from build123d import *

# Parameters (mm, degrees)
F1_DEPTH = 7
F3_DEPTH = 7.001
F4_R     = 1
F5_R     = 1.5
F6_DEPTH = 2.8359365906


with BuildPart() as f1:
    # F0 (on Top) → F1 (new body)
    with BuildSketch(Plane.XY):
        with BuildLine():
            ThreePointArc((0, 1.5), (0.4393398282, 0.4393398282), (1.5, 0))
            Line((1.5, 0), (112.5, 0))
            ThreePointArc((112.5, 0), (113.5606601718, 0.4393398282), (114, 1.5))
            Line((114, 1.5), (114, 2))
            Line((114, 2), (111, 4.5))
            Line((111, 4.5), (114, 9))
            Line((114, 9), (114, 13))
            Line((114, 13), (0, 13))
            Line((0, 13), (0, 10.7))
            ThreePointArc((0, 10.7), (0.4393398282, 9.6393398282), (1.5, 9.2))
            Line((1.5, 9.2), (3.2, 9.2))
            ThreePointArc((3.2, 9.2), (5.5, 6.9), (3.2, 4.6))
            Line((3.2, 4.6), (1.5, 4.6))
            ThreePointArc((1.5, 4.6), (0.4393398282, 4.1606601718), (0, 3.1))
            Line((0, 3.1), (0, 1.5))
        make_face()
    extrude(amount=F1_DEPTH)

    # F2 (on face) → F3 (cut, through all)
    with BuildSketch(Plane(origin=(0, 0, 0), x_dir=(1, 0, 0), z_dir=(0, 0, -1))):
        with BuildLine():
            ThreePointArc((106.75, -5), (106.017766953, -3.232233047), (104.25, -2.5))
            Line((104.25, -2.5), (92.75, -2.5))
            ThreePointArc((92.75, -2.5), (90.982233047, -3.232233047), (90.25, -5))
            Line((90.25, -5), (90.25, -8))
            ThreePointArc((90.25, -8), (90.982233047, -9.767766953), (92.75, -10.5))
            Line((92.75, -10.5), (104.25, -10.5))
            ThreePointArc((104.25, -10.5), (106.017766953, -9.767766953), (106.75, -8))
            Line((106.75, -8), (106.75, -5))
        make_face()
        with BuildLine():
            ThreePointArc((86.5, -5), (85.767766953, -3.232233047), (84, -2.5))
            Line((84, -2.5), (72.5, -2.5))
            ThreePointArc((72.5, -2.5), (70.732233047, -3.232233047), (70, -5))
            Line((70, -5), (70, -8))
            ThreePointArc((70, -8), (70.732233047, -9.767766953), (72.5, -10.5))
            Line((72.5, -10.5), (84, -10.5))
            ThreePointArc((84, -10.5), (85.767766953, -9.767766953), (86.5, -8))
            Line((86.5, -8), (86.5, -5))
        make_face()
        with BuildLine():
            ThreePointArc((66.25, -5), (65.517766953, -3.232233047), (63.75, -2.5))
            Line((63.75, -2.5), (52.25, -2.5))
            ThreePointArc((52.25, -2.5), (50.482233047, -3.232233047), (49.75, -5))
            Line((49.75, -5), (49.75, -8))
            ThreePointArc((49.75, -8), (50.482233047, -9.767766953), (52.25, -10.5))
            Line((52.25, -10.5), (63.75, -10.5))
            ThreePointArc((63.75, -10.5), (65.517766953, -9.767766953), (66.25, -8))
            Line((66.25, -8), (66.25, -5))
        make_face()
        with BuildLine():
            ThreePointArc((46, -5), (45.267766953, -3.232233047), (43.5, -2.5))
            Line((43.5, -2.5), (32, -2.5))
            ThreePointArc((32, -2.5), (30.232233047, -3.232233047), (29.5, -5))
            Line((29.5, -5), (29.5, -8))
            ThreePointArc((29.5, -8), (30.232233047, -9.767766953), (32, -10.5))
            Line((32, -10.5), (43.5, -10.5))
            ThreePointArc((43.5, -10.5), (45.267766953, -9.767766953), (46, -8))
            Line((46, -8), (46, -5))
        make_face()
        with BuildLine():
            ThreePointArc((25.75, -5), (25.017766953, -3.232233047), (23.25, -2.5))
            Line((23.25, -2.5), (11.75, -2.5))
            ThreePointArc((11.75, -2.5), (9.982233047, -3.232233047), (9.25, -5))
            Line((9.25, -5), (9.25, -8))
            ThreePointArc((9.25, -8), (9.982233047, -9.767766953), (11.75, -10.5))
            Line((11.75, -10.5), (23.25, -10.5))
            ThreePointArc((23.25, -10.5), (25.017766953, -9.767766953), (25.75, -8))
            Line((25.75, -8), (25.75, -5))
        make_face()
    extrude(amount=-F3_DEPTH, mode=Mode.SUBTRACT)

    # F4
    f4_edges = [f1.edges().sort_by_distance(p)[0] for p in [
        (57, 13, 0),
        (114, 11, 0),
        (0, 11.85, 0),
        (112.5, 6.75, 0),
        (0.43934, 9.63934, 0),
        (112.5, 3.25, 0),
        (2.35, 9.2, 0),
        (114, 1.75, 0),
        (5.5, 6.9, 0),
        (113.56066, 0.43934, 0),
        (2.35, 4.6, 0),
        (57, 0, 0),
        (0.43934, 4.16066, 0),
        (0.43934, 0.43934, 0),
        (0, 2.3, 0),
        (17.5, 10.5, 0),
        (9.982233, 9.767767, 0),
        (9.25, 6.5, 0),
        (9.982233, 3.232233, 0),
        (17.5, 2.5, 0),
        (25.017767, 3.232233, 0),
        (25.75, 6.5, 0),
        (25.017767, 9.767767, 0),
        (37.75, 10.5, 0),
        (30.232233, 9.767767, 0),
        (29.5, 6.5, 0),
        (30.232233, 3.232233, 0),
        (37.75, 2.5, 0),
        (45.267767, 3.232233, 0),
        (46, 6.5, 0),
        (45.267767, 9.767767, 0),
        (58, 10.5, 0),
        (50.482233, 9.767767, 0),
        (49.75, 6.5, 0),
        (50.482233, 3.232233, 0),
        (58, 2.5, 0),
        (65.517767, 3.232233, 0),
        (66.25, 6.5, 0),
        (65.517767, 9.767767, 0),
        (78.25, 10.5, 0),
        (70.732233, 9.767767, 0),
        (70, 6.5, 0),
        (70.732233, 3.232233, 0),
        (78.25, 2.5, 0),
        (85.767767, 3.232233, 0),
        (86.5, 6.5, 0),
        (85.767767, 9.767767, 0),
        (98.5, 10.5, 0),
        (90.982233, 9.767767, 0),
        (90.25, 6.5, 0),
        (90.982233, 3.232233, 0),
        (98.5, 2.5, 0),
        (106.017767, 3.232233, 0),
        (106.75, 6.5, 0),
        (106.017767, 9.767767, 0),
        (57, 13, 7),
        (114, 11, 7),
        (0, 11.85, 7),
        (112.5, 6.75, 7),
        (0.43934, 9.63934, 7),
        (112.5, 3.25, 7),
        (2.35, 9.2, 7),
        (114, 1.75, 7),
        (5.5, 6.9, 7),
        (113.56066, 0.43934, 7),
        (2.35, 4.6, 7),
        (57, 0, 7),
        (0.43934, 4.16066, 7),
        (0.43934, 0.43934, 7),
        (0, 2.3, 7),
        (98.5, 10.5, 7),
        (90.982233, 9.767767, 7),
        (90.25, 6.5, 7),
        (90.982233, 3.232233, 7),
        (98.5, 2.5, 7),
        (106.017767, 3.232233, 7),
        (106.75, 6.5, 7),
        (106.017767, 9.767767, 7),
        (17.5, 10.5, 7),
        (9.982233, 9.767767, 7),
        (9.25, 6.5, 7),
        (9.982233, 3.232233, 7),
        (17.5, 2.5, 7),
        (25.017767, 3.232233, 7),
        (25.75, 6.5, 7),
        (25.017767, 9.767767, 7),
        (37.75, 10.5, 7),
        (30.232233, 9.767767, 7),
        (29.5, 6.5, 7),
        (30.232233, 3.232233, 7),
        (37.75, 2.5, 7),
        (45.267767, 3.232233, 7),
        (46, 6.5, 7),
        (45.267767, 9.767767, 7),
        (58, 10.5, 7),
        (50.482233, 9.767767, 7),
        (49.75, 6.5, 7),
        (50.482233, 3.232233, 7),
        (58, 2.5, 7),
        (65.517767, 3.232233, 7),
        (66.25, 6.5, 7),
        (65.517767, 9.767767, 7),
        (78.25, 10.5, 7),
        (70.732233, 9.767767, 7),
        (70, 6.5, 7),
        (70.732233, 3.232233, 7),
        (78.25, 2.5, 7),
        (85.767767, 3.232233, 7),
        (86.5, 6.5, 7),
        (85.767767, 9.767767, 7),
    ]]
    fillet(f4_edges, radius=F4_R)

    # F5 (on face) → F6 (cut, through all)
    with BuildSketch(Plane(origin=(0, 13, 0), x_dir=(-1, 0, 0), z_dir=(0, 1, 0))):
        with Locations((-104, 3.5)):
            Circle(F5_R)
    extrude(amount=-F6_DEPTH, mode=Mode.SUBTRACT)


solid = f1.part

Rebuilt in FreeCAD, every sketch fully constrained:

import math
import FreeCAD as App
import Part
import Sketcher


def edges_at(feature, points):
    """Names of the edges that pass closest to the given points."""
    edges = feature.Shape.Edges
    near = lambda p: min(range(len(edges)), key=lambda i: edges[i].distToShape(Part.Vertex(*p))[0])
    return sorted({f"Edge{near(p) + 1}" for p in points})

doc = App.newDocument("Part")
params = doc.addObject("Spreadsheet::Sheet", "Params")
for row, (alias, value) in enumerate([
    ("sketch1_radius", "1.5 mm"),
    ("sketch1_radius2", "2.3 mm"),
    ("sketch1_width", "111 mm"),
    ("sketch1_height", "4 mm"),
    ("sketch1_width2", "1.7 mm"),
    ("pad1_length", "7 mm"),
    ("sketch2_radius", "2.5 mm"),
    ("sketch2_height", "3 mm"),
    ("sketch2_width", "11.5 mm"),
    ("fillet_radius", "1 mm"),
    ("sketch3_diameter", "3 mm"),
    ("pocket2_length", "2.835937 mm"),
], start=1):
    params.set(f"A{row}", alias)
    params.set(f"B{row}", "=" + value)
    params.setAlias(f"B{row}", alias)

body = doc.addObject("PartDesign::Body", "Body")

sketch1 = body.newObject("Sketcher::SketchObject", "Sketch")
sketch1.AttachmentSupport = (doc.getObject("XY_Plane"), [""])
sketch1.MapMode = "FlatFace"
sketch1.addGeometry([
    Part.ArcOfCircle(Part.Circle(App.Vector(1.5, 1.5, 0), App.Vector(0, 0, 1), 1.5), math.radians(180), math.radians(270)),
    Part.LineSegment(App.Vector(1.5, 0, 0), App.Vector(112.5, 0, 0)),
    Part.ArcOfCircle(Part.Circle(App.Vector(112.5, 1.5, 0), App.Vector(0, 0, 1), 1.5), math.radians(-90), math.radians(0)),
    Part.LineSegment(App.Vector(114, 1.5, 0), App.Vector(114, 2, 0)),
    Part.LineSegment(App.Vector(114, 2, 0), App.Vector(111, 4.5, 0)),
    Part.LineSegment(App.Vector(111, 4.5, 0), App.Vector(114, 9, 0)),
    Part.LineSegment(App.Vector(114, 9, 0), App.Vector(114, 13, 0)),
    Part.LineSegment(App.Vector(114, 13, 0), App.Vector(0, 13, 0)),
    Part.LineSegment(App.Vector(0, 13, 0), App.Vector(0, 10.7, 0)),
    Part.ArcOfCircle(Part.Circle(App.Vector(1.5, 10.7, 0), App.Vector(0, 0, 1), 1.5), math.radians(180), math.radians(270)),
    Part.LineSegment(App.Vector(1.5, 9.2, 0), App.Vector(3.2, 9.2, 0)),
    Part.ArcOfCircle(Part.Circle(App.Vector(3.2, 6.9, 0), App.Vector(0, 0, 1), 2.3), math.radians(-90), math.radians(90)),
    Part.LineSegment(App.Vector(3.2, 4.6, 0), App.Vector(1.5, 4.6, 0)),
    Part.ArcOfCircle(Part.Circle(App.Vector(1.5, 3.1, 0), App.Vector(0, 0, 1), 1.5), math.radians(90), math.radians(180)),
    Part.LineSegment(App.Vector(0, 3.1, 0), App.Vector(0, 1.5, 0)),
], False)
sketch1.addConstraint([
    Sketcher.Constraint("Tangent", 0, 2, 1, 1),
    Sketcher.Constraint("Tangent", 1, 2, 2, 1),
    Sketcher.Constraint("Tangent", 2, 2, 3, 1),
    Sketcher.Constraint("Coincident", 3, 2, 4, 1),
    Sketcher.Constraint("Coincident", 4, 2, 5, 1),
    Sketcher.Constraint("Coincident", 5, 2, 6, 1),
    Sketcher.Constraint("Coincident", 6, 2, 7, 1),
    Sketcher.Constraint("Coincident", 7, 2, 8, 1),
    Sketcher.Constraint("Tangent", 8, 2, 9, 1),
    Sketcher.Constraint("Tangent", 9, 2, 10, 1),
    Sketcher.Constraint("Tangent", 10, 2, 11, 2),
    Sketcher.Constraint("Tangent", 11, 1, 12, 1),
    Sketcher.Constraint("Tangent", 12, 2, 13, 1),
    Sketcher.Constraint("Tangent", 13, 2, 14, 1),
    Sketcher.Constraint("Tangent", 14, 2, 0, 1),
    Sketcher.Constraint("Horizontal", 1),
    Sketcher.Constraint("Vertical", 3),
    Sketcher.Constraint("Vertical", 6),
    Sketcher.Constraint("Horizontal", 7),
    Sketcher.Constraint("Vertical", 8),
    Sketcher.Constraint("Horizontal", 10),
    Sketcher.Constraint("Horizontal", 12),
    Sketcher.Constraint("Vertical", 14),
    Sketcher.Constraint("Equal", 0, 2),
    Sketcher.Constraint("Equal", 2, 9),
    Sketcher.Constraint("Equal", 9, 13),
    Sketcher.Constraint("PointOnObject", 0, 2, -1),
    Sketcher.Constraint("PointOnObject", 7, 2, -2),
    Sketcher.Constraint("PointOnObject", 13, 2, -2),
    Sketcher.Constraint("Vertical", 3, 2, 5, 2),
    Sketcher.Constraint("Radius", 0, 1.5),
    Sketcher.Constraint("Radius", 11, 2.3),
    Sketcher.Constraint("DistanceX", 1, 1, 1, 2, 111.0),
    Sketcher.Constraint("DistanceY", 6, 1, 6, 2, 4.0),
    Sketcher.Constraint("DistanceX", 10, 1, 10, 2, 1.7),
    Sketcher.Constraint("DistanceY", 3, 1, 3, 2, 0.5),
    Sketcher.Constraint("DistanceY", 8, 2, 8, 1, 2.3),
    Sketcher.Constraint("DistanceY", 14, 2, 14, 1, 1.6),
    Sketcher.Constraint("DistanceX", -1, 1, 4, 2, 111.0),
    Sketcher.Constraint("DistanceY", 2, 3, 4, 2, 3.0),
])
sketch1.setExpression("Constraints[30]", "Params.sketch1_radius")
sketch1.setExpression("Constraints[31]", "Params.sketch1_radius2")
sketch1.setExpression("Constraints[32]", "Params.sketch1_width")
sketch1.setExpression("Constraints[33]", "Params.sketch1_height")
sketch1.setExpression("Constraints[34]", "Params.sketch1_width2")
pad1 = body.newObject("PartDesign::Pad", "Pad")
pad1.Profile = sketch1
pad1.setExpression("Length", "Params.pad1_length")

sketch2 = body.newObject("Sketcher::SketchObject", "Sketch001")
sketch2.AttachmentSupport = (doc.getObject("XY_Plane"), [""])
sketch2.MapMode = "FlatFace"
sketch2.addGeometry([
    Part.ArcOfCircle(Part.Circle(App.Vector(104.2, 5, 0), App.Vector(0, 0, 1), 2.5), math.radians(-90), math.radians(0)),
    Part.LineSegment(App.Vector(104.2, 2.5, 0), App.Vector(92.8, 2.5, 0)),
    Part.ArcOfCircle(Part.Circle(App.Vector(92.8, 5, 0), App.Vector(0, 0, 1), 2.5), math.radians(180), math.radians(270)),
    Part.LineSegment(App.Vector(90.2, 5, 0), App.Vector(90.2, 8, 0)),
    Part.ArcOfCircle(Part.Circle(App.Vector(92.8, 8, 0), App.Vector(0, 0, 1), 2.5), math.radians(90), math.radians(180)),
    Part.LineSegment(App.Vector(92.8, 10.5, 0), App.Vector(104.2, 10.5, 0)),
    Part.ArcOfCircle(Part.Circle(App.Vector(104.2, 8, 0), App.Vector(0, 0, 1), 2.5), math.radians(0), math.radians(90)),
    Part.LineSegment(App.Vector(106.8, 8, 0), App.Vector(106.8, 5, 0)),
    Part.ArcOfCircle(Part.Circle(App.Vector(84, 5, 0), App.Vector(0, 0, 1), 2.5), math.radians(-90), math.radians(0)),
    Part.LineSegment(App.Vector(84, 2.5, 0), App.Vector(72.5, 2.5, 0)),
    Part.ArcOfCircle(Part.Circle(App.Vector(72.5, 5, 0), App.Vector(0, 0, 1), 2.5), math.radians(180), math.radians(270)),
    Part.LineSegment(App.Vector(70, 5, 0), App.Vector(70, 8, 0)),
    Part.ArcOfCircle(Part.Circle(App.Vector(72.5, 8, 0), App.Vector(0, 0, 1), 2.5), math.radians(90), math.radians(180)),
    Part.LineSegment(App.Vector(72.5, 10.5, 0), App.Vector(84, 10.5, 0)),
    Part.ArcOfCircle(Part.Circle(App.Vector(84, 8, 0), App.Vector(0, 0, 1), 2.5), math.radians(0), math.radians(90)),
    Part.LineSegment(App.Vector(86.5, 8, 0), App.Vector(86.5, 5, 0)),
    Part.ArcOfCircle(Part.Circle(App.Vector(63.8, 5, 0), App.Vector(0, 0, 1), 2.5), math.radians(-90), math.radians(0)),
    Part.LineSegment(App.Vector(63.8, 2.5, 0), App.Vector(52.2, 2.5, 0)),
    Part.ArcOfCircle(Part.Circle(App.Vector(52.2, 5, 0), App.Vector(0, 0, 1), 2.5), math.radians(180), math.radians(270)),
    Part.LineSegment(App.Vector(49.8, 5, 0), App.Vector(49.8, 8, 0)),
    Part.ArcOfCircle(Part.Circle(App.Vector(52.2, 8, 0), App.Vector(0, 0, 1), 2.5), math.radians(90), math.radians(180)),
    Part.LineSegment(App.Vector(52.2, 10.5, 0), App.Vector(63.8, 10.5, 0)),
    Part.ArcOfCircle(Part.Circle(App.Vector(63.8, 8, 0), App.Vector(0, 0, 1), 2.5), math.radians(0), math.radians(90)),
    Part.LineSegment(App.Vector(66.2, 8, 0), App.Vector(66.2, 5, 0)),
    Part.ArcOfCircle(Part.Circle(App.Vector(43.5, 5, 0), App.Vector(0, 0, 1), 2.5), math.radians(-90), math.radians(0)),
    Part.LineSegment(App.Vector(43.5, 2.5, 0), App.Vector(32, 2.5, 0)),
    Part.ArcOfCircle(Part.Circle(App.Vector(32, 5, 0), App.Vector(0, 0, 1), 2.5), math.radians(180), math.radians(270)),
    Part.LineSegment(App.Vector(29.5, 5, 0), App.Vector(29.5, 8, 0)),
    Part.ArcOfCircle(Part.Circle(App.Vector(32, 8, 0), App.Vector(0, 0, 1), 2.5), math.radians(90), math.radians(180)),
    Part.LineSegment(App.Vector(32, 10.5, 0), App.Vector(43.5, 10.5, 0)),
    Part.ArcOfCircle(Part.Circle(App.Vector(43.5, 8, 0), App.Vector(0, 0, 1), 2.5), math.radians(0), math.radians(90)),
    Part.LineSegment(App.Vector(46, 8, 0), App.Vector(46, 5, 0)),
    Part.ArcOfCircle(Part.Circle(App.Vector(23.2, 5, 0), App.Vector(0, 0, 1), 2.5), math.radians(-90), math.radians(0)),
    Part.LineSegment(App.Vector(23.2, 2.5, 0), App.Vector(11.8, 2.5, 0)),
    Part.ArcOfCircle(Part.Circle(App.Vector(11.8, 5, 0), App.Vector(0, 0, 1), 2.5), math.radians(180), math.radians(270)),
    Part.LineSegment(App.Vector(9.2, 5, 0), App.Vector(9.2, 8, 0)),
    Part.ArcOfCircle(Part.Circle(App.Vector(11.8, 8, 0), App.Vector(0, 0, 1), 2.5), math.radians(90), math.radians(180)),
    Part.LineSegment(App.Vector(11.8, 10.5, 0), App.Vector(23.2, 10.5, 0)),
    Part.ArcOfCircle(Part.Circle(App.Vector(23.2, 8, 0), App.Vector(0, 0, 1), 2.5), math.radians(0), math.radians(90)),
    Part.LineSegment(App.Vector(25.8, 8, 0), App.Vector(25.8, 5, 0)),
], False)
sketch2.addConstraint([
    Sketcher.Constraint("Tangent", 0, 1, 1, 1),
    Sketcher.Constraint("Tangent", 1, 2, 2, 2),
    Sketcher.Constraint("Tangent", 2, 1, 3, 1),
    Sketcher.Constraint("Tangent", 3, 2, 4, 2),
    Sketcher.Constraint("Tangent", 4, 1, 5, 1),
    Sketcher.Constraint("Tangent", 5, 2, 6, 2),
    Sketcher.Constraint("Tangent", 6, 1, 7, 1),
    Sketcher.Constraint("Tangent", 7, 2, 0, 2),
    Sketcher.Constraint("Tangent", 8, 1, 9, 1),
    Sketcher.Constraint("Tangent", 9, 2, 10, 2),
    Sketcher.Constraint("Tangent", 10, 1, 11, 1),
    Sketcher.Constraint("Tangent", 11, 2, 12, 2),
    Sketcher.Constraint("Tangent", 12, 1, 13, 1),
    Sketcher.Constraint("Tangent", 13, 2, 14, 2),
    Sketcher.Constraint("Tangent", 14, 1, 15, 1),
    Sketcher.Constraint("Tangent", 15, 2, 8, 2),
    Sketcher.Constraint("Tangent", 16, 1, 17, 1),
    Sketcher.Constraint("Tangent", 17, 2, 18, 2),
    Sketcher.Constraint("Tangent", 18, 1, 19, 1),
    Sketcher.Constraint("Tangent", 19, 2, 20, 2),
    Sketcher.Constraint("Tangent", 20, 1, 21, 1),
    Sketcher.Constraint("Tangent", 21, 2, 22, 2),
    Sketcher.Constraint("Tangent", 22, 1, 23, 1),
    Sketcher.Constraint("Tangent", 23, 2, 16, 2),
    Sketcher.Constraint("Tangent", 24, 1, 25, 1),
    Sketcher.Constraint("Tangent", 25, 2, 26, 2),
    Sketcher.Constraint("Tangent", 26, 1, 27, 1),
    Sketcher.Constraint("Tangent", 27, 2, 28, 2),
    Sketcher.Constraint("Tangent", 28, 1, 29, 1),
    Sketcher.Constraint("Tangent", 29, 2, 30, 2),
    Sketcher.Constraint("Tangent", 30, 1, 31, 1),
    Sketcher.Constraint("Tangent", 31, 2, 24, 2),
    Sketcher.Constraint("Tangent", 32, 1, 33, 1),
    Sketcher.Constraint("Tangent", 33, 2, 34, 2),
    Sketcher.Constraint("Tangent", 34, 1, 35, 1),
    Sketcher.Constraint("Tangent", 35, 2, 36, 2),
    Sketcher.Constraint("Tangent", 36, 1, 37, 1),
    Sketcher.Constraint("Tangent", 37, 2, 38, 2),
    Sketcher.Constraint("Tangent", 38, 1, 39, 1),
    Sketcher.Constraint("Tangent", 39, 2, 32, 2),
    Sketcher.Constraint("Horizontal", 1),
    Sketcher.Constraint("Vertical", 3),
    Sketcher.Constraint("Horizontal", 5),
    Sketcher.Constraint("Vertical", 7),
    Sketcher.Constraint("Horizontal", 9),
    Sketcher.Constraint("Vertical", 11),
    Sketcher.Constraint("Horizontal", 13),
    Sketcher.Constraint("Vertical", 15),
    Sketcher.Constraint("Horizontal", 17),
    Sketcher.Constraint("Vertical", 19),
    Sketcher.Constraint("Horizontal", 21),
    Sketcher.Constraint("Vertical", 23),
    Sketcher.Constraint("Horizontal", 25),
    Sketcher.Constraint("Vertical", 27),
    Sketcher.Constraint("Horizontal", 29),
    Sketcher.Constraint("Vertical", 31),
    Sketcher.Constraint("Horizontal", 33),
    Sketcher.Constraint("Vertical", 35),
    Sketcher.Constraint("Horizontal", 37),
    Sketcher.Constraint("Vertical", 39),
    Sketcher.Constraint("Equal", 0, 2),
    Sketcher.Constraint("Equal", 2, 4),
    Sketcher.Constraint("Equal", 4, 6),
    Sketcher.Constraint("Equal", 6, 8),
    Sketcher.Constraint("Equal", 8, 10),
    Sketcher.Constraint("Equal", 10, 12),
    Sketcher.Constraint("Equal", 12, 14),
    Sketcher.Constraint("Equal", 14, 16),
    Sketcher.Constraint("Equal", 16, 18),
    Sketcher.Constraint("Equal", 18, 20),
    Sketcher.Constraint("Equal", 20, 22),
    Sketcher.Constraint("Equal", 22, 24),
    Sketcher.Constraint("Equal", 24, 26),
    Sketcher.Constraint("Equal", 26, 28),
    Sketcher.Constraint("Equal", 28, 30),
    Sketcher.Constraint("Equal", 30, 32),
    Sketcher.Constraint("Equal", 32, 34),
    Sketcher.Constraint("Equal", 34, 36),
    Sketcher.Constraint("Equal", 36, 38),
    Sketcher.Constraint("Horizontal", 2, 3, 8, 3),
    Sketcher.Constraint("Horizontal", 6, 3, 12, 3),
    Sketcher.Constraint("Horizontal", 10, 3, 16, 3),
    Sketcher.Constraint("Horizontal", 14, 3, 20, 3),
    Sketcher.Constraint("Horizontal", 18, 3, 24, 3),
    Sketcher.Constraint("Horizontal", 22, 3, 28, 3),
    Sketcher.Constraint("Horizontal", 26, 3, 32, 3),
    Sketcher.Constraint("Horizontal", 30, 3, 36, 3),
    Sketcher.Constraint("Equal", 5, 9),
    Sketcher.Constraint("Equal", 13, 17),
    Sketcher.Constraint("Equal", 21, 25),
    Sketcher.Constraint("Equal", 29, 33),
    Sketcher.Constraint("Radius", 0, 2.5),
    Sketcher.Constraint("DistanceY", 3, 1, 3, 2, 3.0),
    Sketcher.Constraint("DistanceX", 1, 2, 1, 1, 11.5),
    Sketcher.Constraint("DistanceY", -1, 1, 0, 3, 5.0),
    Sketcher.Constraint("DistanceX", -1, 1, 8, 3, 84.0),
    Sketcher.Constraint("DistanceX", -1, 1, 26, 3, 32.0),
    Sketcher.Constraint("DistanceX", 16, 3, 2, 3, 29.0),
    Sketcher.Constraint("DistanceX", 32, 3, 18, 3, 29.0),
    Sketcher.Constraint("DistanceX", -1, 1, 0, 3, 104.25),
])
sketch2.setExpression("Constraints[91]", "Params.sketch2_radius")
sketch2.setExpression("Constraints[92]", "Params.sketch2_height")
sketch2.setExpression("Constraints[93]", "Params.sketch2_width")
pocket1 = body.newObject("PartDesign::Pocket", "Pocket")
pocket1.Profile = sketch2
pocket1.Type = "ThroughAll"
pocket1.Reversed = True
doc.recompute()

fillet = body.newObject("PartDesign::Fillet", "Fillet")
fillet.Base = (pocket1, edges_at(pocket1, [
    (57, 13, 0),
    (114, 11, 0),
    (0, 11.85, 0),
    (112.5, 6.75, 0),
    (0.439, 9.639, 0),
    (112.5, 3.25, 0),
    (2.35, 9.2, 0),
    (114, 1.75, 0),
    (5.5, 6.9, 0),
    (113.561, 0.439, 0),
    (2.35, 4.6, 0),
    (57, 0, 0),
    (0.439, 4.161, 0),
    (0.439, 0.439, 0),
    (0, 2.3, 0),
    (17.5, 10.5, 0),
    (9.982, 9.768, 0),
    (9.25, 6.5, 0),
    (9.982, 3.232, 0),
    (17.5, 2.5, 0),
    (25.018, 3.232, 0),
    (25.75, 6.5, 0),
    (25.018, 9.768, 0),
    (37.75, 10.5, 0),
    (30.232, 9.768, 0),
    (29.5, 6.5, 0),
    (30.232, 3.232, 0),
    (37.75, 2.5, 0),
    (45.268, 3.232, 0),
    (46, 6.5, 0),
    (45.268, 9.768, 0),
    (58, 10.5, 0),
    (50.482, 9.768, 0),
    (49.75, 6.5, 0),
    (50.482, 3.232, 0),
    (58, 2.5, 0),
    (65.518, 3.232, 0),
    (66.25, 6.5, 0),
    (65.518, 9.768, 0),
    (78.25, 10.5, 0),
    (70.732, 9.768, 0),
    (70, 6.5, 0),
    (70.732, 3.232, 0),
    (78.25, 2.5, 0),
    (85.768, 3.232, 0),
    (86.5, 6.5, 0),
    (85.768, 9.768, 0),
    (98.5, 10.5, 0),
    (90.982, 9.768, 0),
    (90.25, 6.5, 0),
    (90.982, 3.232, 0),
    (98.5, 2.5, 0),
    (106.018, 3.232, 0),
    (106.75, 6.5, 0),
    (106.018, 9.768, 0),
    (57, 13, 7),
    (114, 11, 7),
    (0, 11.85, 7),
    (112.5, 6.75, 7),
    (0.439, 9.639, 7),
    (112.5, 3.25, 7),
    (2.35, 9.2, 7),
    (114, 1.75, 7),
    (5.5, 6.9, 7),
    (113.561, 0.439, 7),
    (2.35, 4.6, 7),
    (57, 0, 7),
    (0.439, 4.161, 7),
    (0.439, 0.439, 7),
    (0, 2.3, 7),
    (98.5, 10.5, 7),
    (90.982, 9.768, 7),
    (90.25, 6.5, 7),
    (90.982, 3.232, 7),
    (98.5, 2.5, 7),
    (106.018, 3.232, 7),
    (106.75, 6.5, 7),
    (106.018, 9.768, 7),
    (17.5, 10.5, 7),
    (9.982, 9.768, 7),
    (9.25, 6.5, 7),
    (9.982, 3.232, 7),
    (17.5, 2.5, 7),
    (25.018, 3.232, 7),
    (25.75, 6.5, 7),
    (25.018, 9.768, 7),
    (37.75, 10.5, 7),
    (30.232, 9.768, 7),
    (29.5, 6.5, 7),
    (30.232, 3.232, 7),
    (37.75, 2.5, 7),
    (45.268, 3.232, 7),
    (46, 6.5, 7),
    (45.268, 9.768, 7),
    (58, 10.5, 7),
    (50.482, 9.768, 7),
    (49.75, 6.5, 7),
    (50.482, 3.232, 7),
    (58, 2.5, 7),
    (65.518, 3.232, 7),
    (66.25, 6.5, 7),
    (65.518, 9.768, 7),
    (78.25, 10.5, 7),
    (70.732, 9.768, 7),
    (70, 6.5, 7),
    (70.732, 3.232, 7),
    (78.25, 2.5, 7),
    (85.768, 3.232, 7),
    (86.5, 6.5, 7),
    (85.768, 9.768, 7),
]))
fillet.setExpression("Radius", "Params.fillet_radius")

sketch3 = body.newObject("Sketcher::SketchObject", "Sketch002")
sketch3.AttachmentSupport = (doc.getObject("XZ_Plane"), [""])
sketch3.MapMode = "FlatFace"
sketch3.AttachmentOffset = App.Placement(App.Vector(0, 0, -13), App.Rotation())
sketch3.addGeometry(Part.Circle(App.Vector(104, 3.5, 0), App.Vector(0, 0, 1), 1.5), False)
sketch3.addConstraint([
    Sketcher.Constraint("Diameter", 0, 3.0),
    Sketcher.Constraint("DistanceX", -1, 1, 0, 3, 104.0),
    Sketcher.Constraint("DistanceY", -1, 1, 0, 3, 3.5),
])
sketch3.setExpression("Constraints[0]", "Params.sketch3_diameter")
pocket2 = body.newObject("PartDesign::Pocket", "Pocket001")
pocket2.Profile = sketch3
pocket2.setExpression("Length", "Params.pocket2_length")
pocket2.Reversed = True

doc.recompute()
